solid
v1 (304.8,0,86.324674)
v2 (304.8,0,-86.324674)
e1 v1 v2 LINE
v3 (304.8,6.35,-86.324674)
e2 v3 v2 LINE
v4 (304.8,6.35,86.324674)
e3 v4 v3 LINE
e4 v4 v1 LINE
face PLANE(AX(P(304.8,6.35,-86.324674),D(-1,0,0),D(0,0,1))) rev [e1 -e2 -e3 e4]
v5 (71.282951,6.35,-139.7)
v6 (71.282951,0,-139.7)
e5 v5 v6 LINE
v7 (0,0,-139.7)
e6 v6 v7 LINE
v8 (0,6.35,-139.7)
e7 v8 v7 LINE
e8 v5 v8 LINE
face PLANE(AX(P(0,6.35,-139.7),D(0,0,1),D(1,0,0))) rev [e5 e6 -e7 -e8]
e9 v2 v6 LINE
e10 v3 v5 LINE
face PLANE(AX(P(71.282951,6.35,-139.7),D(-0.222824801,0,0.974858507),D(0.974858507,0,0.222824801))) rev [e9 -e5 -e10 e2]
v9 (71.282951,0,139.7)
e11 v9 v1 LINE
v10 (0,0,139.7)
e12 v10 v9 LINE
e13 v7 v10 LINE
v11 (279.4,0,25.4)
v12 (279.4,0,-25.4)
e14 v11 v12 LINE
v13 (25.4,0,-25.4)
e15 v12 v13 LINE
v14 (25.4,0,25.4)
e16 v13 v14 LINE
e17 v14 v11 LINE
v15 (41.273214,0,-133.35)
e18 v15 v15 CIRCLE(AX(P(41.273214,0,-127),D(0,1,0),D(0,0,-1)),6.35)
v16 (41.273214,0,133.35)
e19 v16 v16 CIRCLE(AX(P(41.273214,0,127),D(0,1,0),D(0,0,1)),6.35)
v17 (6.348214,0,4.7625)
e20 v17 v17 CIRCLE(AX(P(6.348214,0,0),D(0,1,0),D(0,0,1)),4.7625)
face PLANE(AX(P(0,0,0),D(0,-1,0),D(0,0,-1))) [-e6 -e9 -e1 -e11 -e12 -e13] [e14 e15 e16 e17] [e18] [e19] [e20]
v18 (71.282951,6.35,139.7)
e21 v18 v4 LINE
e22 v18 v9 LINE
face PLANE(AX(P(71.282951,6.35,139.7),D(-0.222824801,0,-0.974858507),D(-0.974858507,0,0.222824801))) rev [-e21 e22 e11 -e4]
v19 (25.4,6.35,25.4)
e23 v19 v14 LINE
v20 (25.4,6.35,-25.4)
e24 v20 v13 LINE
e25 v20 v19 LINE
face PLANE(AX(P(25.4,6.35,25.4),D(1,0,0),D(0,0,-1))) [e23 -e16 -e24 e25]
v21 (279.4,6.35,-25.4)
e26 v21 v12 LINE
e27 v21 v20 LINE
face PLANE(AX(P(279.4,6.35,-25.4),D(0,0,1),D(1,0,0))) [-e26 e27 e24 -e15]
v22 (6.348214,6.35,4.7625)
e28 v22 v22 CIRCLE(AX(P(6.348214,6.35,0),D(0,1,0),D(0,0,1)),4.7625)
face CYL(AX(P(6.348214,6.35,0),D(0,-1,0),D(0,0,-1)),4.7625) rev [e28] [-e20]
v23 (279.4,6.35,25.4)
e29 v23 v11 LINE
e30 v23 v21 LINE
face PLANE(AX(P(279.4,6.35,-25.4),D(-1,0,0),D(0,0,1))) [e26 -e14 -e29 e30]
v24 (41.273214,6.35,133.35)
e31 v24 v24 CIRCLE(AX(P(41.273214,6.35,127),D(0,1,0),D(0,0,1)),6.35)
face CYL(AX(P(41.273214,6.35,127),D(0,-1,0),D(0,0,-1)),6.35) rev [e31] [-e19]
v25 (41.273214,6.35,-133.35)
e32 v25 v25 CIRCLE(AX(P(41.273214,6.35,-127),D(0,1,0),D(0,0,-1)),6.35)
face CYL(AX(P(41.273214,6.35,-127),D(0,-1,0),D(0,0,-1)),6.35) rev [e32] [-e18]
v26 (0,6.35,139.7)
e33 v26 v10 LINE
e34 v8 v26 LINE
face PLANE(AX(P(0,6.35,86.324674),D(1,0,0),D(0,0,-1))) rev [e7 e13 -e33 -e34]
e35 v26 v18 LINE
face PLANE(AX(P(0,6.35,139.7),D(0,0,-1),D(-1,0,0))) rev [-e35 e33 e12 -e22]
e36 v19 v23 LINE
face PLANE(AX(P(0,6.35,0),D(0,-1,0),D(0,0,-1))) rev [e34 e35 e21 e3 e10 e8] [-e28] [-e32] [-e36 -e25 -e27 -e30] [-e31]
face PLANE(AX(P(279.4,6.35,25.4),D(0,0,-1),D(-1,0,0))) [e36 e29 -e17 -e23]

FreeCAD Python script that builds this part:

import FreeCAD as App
import Part
import Sketcher

V = App.Vector
Q = App.Units.Quantity

doc = App.newDocument("Part")
body = doc.addObject("PartDesign::Body", "Body")

# Sketch on XZ plane
sketch1 = body.newObject("Sketcher::SketchObject", "Sketch")
sketch1.AttachmentSupport = (doc.getObject("XZ_Plane"), [""])
sketch1.MapMode = "FlatFace"
sketch1.addGeometry(Part.LineSegment(V(0, 139.7, 0), V(71.3, 139.7, 0)), False)
sketch1.addGeometry(Part.LineSegment(V(71.3, 139.7, 0), V(304.8, 86.3, 0)), False)
sketch1.addGeometry(Part.LineSegment(V(304.8, 86.3, 0), V(304.8, -86.3, 0)), False)
sketch1.addGeometry(Part.LineSegment(V(304.8, -86.3, 0), V(71.3, -139.7, 0)), False)
sketch1.addGeometry(Part.LineSegment(V(71.3, -139.7, 0), V(0, -139.7, 0)), False)
sketch1.addGeometry(Part.LineSegment(V(0, -139.7, 0), V(0, 139.7, 0)), False)
sketch1.addGeometry(Part.Circle(V(41.3, 127, 0), V(0, 0, 1), 6.3), False)
sketch1.addGeometry(Part.Circle(V(6.3, 0, 0), V(0, 0, 1), 4.8), False)
sketch1.addGeometry(Part.Circle(V(41.3, -127, 0), V(0, 0, 1), 6.3), False)
sketch1.addGeometry(Part.LineSegment(V(25.4, -25.4, 0), V(279.4, -25.4, 0)), False)
sketch1.addGeometry(Part.LineSegment(V(279.4, -25.4, 0), V(279.4, 25.4, 0)), False)
sketch1.addGeometry(Part.LineSegment(V(279.4, 25.4, 0), V(25.4, 25.4, 0)), False)
sketch1.addGeometry(Part.LineSegment(V(25.4, 25.4, 0), V(25.4, -25.4, 0)), False)
sketch1.addConstraint(Sketcher.Constraint("Coincident", 0, 2, 1, 1))
sketch1.addConstraint(Sketcher.Constraint("Coincident", 1, 2, 2, 1))
sketch1.addConstraint(Sketcher.Constraint("Coincident", 2, 2, 3, 1))
sketch1.addConstraint(Sketcher.Constraint("Coincident", 3, 2, 4, 1))
sketch1.addConstraint(Sketcher.Constraint("Coincident", 4, 2, 5, 1))
sketch1.addConstraint(Sketcher.Constraint("Coincident", 5, 2, 0, 1))
sketch1.addConstraint(Sketcher.Constraint("Coincident", 9, 2, 10, 1))
sketch1.addConstraint(Sketcher.Constraint("Coincident", 10, 2, 11, 1))
sketch1.addConstraint(Sketcher.Constraint("Coincident", 11, 2, 12, 1))
sketch1.addConstraint(Sketcher.Constraint("Coincident", 12, 2, 9, 1))
sketch1.addConstraint(Sketcher.Constraint("Horizontal", 0))
sketch1.addConstraint(Sketcher.Constraint("Vertical", 2))
sketch1.addConstraint(Sketcher.Constraint("Horizontal", 4))
sketch1.addConstraint(Sketcher.Constraint("Vertical", 5))
sketch1.addConstraint(Sketcher.Constraint("Horizontal", 9))
sketch1.addConstraint(Sketcher.Constraint("Vertical", 10))
sketch1.addConstraint(Sketcher.Constraint("Horizontal", 11))
sketch1.addConstraint(Sketcher.Constraint("Vertical", 12))
sketch1.addConstraint(Sketcher.Constraint("Equal", 6, 8))
sketch1.addConstraint(Sketcher.Constraint("Symmetric", 4, 2, 5, 2, -1, 1))
sketch1.addConstraint(Sketcher.Constraint("Symmetric", 6, 3, 8, 3, -1))
sketch1.addConstraint(Sketcher.Constraint("PointOnObject", 7, 3, -1))
sketch1.addConstraint(Sketcher.Constraint("Vertical", 0, 2, 3, 2))
sketch1.addConstraint(Sketcher.Constraint("Equal", 1, 3))
sketch1.addConstraint(Sketcher.Constraint("Diameter", 6, Q("0.5 in")))
sketch1.addConstraint(Sketcher.Constraint("DistanceX", 9, 1, 9, 2, Q("10 in")))
sketch1.addConstraint(Sketcher.Constraint("DistanceY", 5, 1, 5, 2, Q("11 in")))
sketch1.addConstraint(Sketcher.Constraint("DistanceY", 10, 1, 10, 2, Q("2 in")))
sketch1.addConstraint(Sketcher.Constraint("Diameter", 7, Q("0.375 in")))
sketch1.addConstraint(Sketcher.Constraint("DistanceY", -1, 1, 6, 3, Q("5 in")))
sketch1.addConstraint(Sketcher.Constraint("DistanceX", -1, 1, 1, 2, Q("12 in")))
sketch1.addConstraint(Sketcher.Constraint("DistanceX", -1, 1, 9, 2, Q("11 in")))
sketch1.addConstraint(Sketcher.Constraint("DistanceY", 9, 2, -1, 1, Q("1 in")))
sketch1.addConstraint(Sketcher.Constraint("DistanceX", 7, 3, 6, 3, Q("1.375 in")))
sketch1.addConstraint(Sketcher.Constraint("DistanceX", 0, 1, 0, 2, Q("71.282951 mm")))
sketch1.addConstraint(Sketcher.Constraint("DistanceY", 2, 2, 2, 1, Q("172.649349 mm")))
sketch1.addConstraint(Sketcher.Constraint("DistanceX", -1, 1, 6, 3, Q("41.273214 mm")))
pad1 = body.newObject("PartDesign::Pad", "Pad")
pad1.Profile = sketch1
pad1.Length = Q("0.25 in")
pad1.Reversed = True

doc.recompute()
